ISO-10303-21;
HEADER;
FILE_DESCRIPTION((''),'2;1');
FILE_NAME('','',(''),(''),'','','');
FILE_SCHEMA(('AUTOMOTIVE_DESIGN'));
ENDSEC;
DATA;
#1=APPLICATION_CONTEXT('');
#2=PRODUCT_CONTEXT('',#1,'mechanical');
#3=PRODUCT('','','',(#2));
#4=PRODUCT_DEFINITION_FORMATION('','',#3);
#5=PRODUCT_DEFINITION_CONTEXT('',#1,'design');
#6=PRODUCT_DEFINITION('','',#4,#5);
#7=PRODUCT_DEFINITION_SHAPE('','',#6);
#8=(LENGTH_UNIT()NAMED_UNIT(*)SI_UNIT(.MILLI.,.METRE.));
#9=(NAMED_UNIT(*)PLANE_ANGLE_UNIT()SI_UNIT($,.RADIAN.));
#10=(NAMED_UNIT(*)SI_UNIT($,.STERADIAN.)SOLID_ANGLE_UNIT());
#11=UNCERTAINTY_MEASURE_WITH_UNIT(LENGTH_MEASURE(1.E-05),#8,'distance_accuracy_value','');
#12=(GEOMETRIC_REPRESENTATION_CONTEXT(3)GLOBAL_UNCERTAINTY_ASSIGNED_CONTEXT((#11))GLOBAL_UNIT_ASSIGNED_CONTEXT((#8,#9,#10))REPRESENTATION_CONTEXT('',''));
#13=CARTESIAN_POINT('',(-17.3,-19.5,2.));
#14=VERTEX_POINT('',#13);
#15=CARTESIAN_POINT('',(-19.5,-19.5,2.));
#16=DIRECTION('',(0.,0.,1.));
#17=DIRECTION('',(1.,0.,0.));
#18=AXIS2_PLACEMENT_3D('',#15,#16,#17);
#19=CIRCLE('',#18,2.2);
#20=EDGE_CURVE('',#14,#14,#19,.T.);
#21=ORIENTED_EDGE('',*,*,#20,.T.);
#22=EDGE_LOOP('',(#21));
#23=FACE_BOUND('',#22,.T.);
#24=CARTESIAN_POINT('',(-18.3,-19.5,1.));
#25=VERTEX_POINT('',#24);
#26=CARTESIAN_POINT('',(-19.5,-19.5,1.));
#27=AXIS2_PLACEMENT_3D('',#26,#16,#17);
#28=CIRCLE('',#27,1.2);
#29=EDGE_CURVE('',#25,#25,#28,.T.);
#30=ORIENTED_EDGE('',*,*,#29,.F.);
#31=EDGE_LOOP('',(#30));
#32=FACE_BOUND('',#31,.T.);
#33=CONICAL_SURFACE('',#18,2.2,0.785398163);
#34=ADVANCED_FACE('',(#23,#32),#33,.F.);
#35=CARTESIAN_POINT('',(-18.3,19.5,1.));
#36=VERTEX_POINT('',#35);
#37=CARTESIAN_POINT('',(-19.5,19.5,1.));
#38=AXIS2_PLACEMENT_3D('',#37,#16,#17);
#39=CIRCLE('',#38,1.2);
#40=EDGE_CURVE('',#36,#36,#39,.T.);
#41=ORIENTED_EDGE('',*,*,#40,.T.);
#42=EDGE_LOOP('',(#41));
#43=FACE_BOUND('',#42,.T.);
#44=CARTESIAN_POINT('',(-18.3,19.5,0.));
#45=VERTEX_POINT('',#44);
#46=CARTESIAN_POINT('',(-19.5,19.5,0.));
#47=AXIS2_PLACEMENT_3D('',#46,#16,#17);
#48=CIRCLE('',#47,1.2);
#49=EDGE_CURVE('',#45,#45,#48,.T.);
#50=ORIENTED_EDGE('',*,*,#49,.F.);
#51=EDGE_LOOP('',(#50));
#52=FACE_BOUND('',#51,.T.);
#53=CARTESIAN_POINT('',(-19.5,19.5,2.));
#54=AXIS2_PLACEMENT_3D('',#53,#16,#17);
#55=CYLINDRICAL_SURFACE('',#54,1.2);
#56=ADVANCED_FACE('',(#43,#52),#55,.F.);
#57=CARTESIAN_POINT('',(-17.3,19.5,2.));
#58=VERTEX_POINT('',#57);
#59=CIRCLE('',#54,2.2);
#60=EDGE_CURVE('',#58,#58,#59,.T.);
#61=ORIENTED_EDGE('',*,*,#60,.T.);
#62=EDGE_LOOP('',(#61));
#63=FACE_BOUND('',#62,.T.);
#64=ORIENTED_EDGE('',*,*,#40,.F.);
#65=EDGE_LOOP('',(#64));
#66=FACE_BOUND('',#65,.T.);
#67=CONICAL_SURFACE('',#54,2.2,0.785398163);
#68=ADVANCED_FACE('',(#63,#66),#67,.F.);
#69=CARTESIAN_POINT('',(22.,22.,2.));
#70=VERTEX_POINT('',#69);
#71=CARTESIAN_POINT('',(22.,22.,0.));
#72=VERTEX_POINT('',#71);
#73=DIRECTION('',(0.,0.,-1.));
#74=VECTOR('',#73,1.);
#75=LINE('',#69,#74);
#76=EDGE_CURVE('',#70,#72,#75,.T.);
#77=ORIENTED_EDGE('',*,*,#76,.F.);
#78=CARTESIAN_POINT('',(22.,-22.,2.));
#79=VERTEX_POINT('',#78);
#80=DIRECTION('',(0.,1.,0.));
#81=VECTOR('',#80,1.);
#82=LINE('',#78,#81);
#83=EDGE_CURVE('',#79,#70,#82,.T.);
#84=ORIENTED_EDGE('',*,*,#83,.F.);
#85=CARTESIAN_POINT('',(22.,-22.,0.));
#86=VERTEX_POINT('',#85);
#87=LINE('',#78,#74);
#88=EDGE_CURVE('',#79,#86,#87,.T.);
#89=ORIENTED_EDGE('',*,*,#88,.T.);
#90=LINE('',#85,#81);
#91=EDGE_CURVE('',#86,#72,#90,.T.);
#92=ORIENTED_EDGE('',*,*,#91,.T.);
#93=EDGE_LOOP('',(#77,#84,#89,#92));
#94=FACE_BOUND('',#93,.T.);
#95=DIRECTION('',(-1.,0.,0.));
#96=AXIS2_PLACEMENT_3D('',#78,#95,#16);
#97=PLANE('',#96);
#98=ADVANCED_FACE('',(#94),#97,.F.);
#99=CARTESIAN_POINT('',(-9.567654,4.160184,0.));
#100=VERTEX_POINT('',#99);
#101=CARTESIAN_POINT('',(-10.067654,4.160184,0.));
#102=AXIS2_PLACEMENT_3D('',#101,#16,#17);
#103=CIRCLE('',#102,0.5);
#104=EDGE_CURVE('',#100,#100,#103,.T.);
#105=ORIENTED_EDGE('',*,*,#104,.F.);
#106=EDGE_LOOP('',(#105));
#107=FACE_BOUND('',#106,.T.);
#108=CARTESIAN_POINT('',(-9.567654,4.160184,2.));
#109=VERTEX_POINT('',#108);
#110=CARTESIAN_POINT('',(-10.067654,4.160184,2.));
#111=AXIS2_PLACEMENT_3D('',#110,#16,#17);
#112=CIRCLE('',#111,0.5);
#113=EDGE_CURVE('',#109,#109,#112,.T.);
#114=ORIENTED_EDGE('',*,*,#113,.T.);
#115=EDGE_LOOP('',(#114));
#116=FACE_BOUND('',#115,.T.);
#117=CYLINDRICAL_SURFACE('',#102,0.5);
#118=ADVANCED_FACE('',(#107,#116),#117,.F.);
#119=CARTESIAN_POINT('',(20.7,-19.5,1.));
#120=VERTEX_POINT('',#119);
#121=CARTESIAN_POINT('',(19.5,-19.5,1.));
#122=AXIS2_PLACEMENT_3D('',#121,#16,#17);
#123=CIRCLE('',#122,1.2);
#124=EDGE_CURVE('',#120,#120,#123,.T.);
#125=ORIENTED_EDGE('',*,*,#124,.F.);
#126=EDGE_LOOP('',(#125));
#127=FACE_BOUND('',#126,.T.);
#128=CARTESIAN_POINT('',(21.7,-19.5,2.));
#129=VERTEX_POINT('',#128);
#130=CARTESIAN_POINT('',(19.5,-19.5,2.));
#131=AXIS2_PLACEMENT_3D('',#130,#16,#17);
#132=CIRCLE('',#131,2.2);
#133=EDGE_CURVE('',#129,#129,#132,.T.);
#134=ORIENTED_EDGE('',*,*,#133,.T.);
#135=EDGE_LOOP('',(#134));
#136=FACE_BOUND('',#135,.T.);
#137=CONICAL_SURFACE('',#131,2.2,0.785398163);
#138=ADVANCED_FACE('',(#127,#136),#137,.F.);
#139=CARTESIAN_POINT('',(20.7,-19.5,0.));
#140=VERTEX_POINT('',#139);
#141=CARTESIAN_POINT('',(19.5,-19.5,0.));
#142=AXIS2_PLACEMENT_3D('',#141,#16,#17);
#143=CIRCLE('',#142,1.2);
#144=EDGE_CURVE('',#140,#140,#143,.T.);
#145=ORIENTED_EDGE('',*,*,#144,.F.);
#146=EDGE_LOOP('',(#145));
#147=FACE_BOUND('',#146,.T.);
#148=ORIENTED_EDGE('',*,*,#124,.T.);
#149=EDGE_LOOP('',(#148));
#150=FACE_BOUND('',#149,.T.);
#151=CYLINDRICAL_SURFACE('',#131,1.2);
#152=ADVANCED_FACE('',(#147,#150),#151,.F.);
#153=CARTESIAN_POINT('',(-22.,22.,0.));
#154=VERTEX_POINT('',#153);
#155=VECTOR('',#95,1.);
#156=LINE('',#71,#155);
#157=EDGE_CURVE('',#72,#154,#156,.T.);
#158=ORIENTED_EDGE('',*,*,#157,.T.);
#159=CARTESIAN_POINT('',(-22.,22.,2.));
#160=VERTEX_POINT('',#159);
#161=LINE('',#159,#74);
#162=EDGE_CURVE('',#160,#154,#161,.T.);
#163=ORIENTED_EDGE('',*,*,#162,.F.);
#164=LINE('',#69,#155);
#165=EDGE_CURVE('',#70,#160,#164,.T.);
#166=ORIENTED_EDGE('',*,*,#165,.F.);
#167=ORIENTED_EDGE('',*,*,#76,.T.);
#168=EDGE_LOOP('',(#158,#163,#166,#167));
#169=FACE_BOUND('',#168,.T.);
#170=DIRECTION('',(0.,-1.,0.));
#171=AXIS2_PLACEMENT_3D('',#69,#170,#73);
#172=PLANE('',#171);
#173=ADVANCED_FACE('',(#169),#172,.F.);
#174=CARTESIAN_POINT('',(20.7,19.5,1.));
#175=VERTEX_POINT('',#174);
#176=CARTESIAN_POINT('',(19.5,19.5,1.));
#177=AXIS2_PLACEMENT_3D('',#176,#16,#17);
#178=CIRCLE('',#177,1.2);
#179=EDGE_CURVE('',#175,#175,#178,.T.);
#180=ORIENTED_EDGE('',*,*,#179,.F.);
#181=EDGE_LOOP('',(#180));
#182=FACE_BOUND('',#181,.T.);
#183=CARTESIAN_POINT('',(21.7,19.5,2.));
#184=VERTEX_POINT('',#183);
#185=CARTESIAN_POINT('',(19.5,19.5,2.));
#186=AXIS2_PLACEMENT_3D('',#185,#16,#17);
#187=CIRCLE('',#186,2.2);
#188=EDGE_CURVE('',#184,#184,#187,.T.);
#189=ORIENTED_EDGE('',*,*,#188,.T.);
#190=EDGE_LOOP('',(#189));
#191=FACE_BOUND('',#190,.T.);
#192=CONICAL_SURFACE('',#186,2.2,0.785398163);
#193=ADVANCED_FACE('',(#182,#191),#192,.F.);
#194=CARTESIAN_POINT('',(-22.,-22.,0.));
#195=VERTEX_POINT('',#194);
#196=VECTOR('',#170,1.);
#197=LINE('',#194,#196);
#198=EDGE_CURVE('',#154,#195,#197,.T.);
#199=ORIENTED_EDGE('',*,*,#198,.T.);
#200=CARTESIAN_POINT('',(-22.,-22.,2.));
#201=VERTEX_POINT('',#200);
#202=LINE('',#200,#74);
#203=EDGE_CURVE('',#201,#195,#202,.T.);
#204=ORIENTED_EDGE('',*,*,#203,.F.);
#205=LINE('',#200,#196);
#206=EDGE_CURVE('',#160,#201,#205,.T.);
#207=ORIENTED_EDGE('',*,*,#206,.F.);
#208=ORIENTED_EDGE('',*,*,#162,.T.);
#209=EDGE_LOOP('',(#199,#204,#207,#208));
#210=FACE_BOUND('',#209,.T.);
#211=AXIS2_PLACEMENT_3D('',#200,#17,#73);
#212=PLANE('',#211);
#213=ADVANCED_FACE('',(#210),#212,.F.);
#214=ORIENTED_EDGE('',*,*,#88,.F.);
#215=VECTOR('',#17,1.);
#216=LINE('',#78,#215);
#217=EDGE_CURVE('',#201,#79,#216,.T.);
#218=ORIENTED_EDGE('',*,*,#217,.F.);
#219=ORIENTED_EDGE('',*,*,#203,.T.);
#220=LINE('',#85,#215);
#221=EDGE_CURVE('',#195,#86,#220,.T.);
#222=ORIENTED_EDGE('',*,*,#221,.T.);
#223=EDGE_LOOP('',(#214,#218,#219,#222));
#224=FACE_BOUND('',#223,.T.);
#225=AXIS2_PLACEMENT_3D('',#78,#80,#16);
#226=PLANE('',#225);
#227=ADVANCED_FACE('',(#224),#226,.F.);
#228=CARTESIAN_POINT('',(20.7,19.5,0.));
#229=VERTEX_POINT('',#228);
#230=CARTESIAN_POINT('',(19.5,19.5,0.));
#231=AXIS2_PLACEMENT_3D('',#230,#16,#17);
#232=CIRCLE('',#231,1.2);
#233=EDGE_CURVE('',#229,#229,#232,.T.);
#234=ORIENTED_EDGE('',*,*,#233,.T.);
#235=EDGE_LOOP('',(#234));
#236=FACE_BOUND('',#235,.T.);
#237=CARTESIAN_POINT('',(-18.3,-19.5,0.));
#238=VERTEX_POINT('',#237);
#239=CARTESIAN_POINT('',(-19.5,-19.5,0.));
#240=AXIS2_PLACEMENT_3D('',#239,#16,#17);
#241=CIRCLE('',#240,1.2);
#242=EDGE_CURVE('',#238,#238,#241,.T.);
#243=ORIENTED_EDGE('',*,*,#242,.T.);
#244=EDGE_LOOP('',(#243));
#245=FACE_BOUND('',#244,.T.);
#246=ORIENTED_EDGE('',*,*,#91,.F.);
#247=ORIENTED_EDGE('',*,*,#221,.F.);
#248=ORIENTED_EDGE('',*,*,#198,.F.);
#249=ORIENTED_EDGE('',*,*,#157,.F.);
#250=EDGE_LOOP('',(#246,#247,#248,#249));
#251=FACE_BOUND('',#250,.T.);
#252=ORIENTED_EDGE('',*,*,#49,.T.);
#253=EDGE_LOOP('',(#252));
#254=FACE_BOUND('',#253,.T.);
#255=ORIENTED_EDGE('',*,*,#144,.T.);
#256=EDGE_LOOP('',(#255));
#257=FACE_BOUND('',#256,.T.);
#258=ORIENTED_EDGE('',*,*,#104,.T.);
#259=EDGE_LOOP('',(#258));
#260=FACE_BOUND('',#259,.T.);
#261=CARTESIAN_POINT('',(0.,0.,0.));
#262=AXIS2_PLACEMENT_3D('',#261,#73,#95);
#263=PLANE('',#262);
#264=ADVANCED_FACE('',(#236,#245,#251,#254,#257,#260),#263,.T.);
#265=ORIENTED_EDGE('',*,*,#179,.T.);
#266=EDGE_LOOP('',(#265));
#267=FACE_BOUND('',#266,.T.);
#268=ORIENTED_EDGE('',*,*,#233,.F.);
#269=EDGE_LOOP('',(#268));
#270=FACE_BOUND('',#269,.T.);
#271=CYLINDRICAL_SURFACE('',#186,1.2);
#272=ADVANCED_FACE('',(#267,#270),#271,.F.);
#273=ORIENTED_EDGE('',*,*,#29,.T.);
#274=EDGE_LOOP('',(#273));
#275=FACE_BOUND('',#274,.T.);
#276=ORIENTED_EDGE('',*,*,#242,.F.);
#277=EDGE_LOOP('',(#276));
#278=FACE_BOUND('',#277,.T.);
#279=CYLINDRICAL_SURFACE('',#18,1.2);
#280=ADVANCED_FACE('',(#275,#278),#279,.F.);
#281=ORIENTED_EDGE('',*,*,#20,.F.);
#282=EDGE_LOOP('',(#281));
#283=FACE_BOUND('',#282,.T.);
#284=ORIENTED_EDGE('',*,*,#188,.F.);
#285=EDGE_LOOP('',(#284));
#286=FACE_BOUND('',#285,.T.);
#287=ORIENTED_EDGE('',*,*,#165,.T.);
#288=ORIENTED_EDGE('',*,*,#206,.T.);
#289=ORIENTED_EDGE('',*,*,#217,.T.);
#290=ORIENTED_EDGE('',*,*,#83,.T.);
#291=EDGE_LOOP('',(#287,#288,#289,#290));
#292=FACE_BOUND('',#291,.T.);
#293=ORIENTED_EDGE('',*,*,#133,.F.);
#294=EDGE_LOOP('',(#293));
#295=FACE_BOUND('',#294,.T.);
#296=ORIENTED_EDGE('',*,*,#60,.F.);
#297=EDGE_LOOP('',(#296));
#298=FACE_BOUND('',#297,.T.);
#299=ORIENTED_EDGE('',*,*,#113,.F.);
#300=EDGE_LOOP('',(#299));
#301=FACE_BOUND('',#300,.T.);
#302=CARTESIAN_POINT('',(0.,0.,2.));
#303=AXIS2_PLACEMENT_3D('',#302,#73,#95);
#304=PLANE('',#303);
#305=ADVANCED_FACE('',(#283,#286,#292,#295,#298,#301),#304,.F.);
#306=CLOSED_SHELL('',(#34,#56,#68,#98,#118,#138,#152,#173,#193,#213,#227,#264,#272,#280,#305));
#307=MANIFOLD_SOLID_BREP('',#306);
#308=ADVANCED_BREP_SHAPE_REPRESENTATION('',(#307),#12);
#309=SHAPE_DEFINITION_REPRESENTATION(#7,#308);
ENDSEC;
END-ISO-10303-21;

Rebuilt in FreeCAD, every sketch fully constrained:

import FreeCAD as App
import Part
import Sketcher
from FreeCAD import Vector
Q = App.Units.Quantity

doc = App.newDocument("Part")
body = doc.addObject("PartDesign::Body", "Body")

sketch1 = body.newObject("Sketcher::SketchObject", "Sketch")
sketch1.AttachmentSupport = (doc.getObject("XY_Plane"), [""])
sketch1.MapMode = "FlatFace"
sketch1.addGeometry(Part.LineSegment(Vector(-22, -22, 0), Vector(22, -22, 0)), False)
sketch1.addGeometry(Part.LineSegment(Vector(22, -22, 0), Vector(22, 22, 0)), False)
sketch1.addGeometry(Part.LineSegment(Vector(22, 22, 0), Vector(-22, 22, 0)), False)
sketch1.addGeometry(Part.LineSegment(Vector(-22, 22, 0), Vector(-22, -22, 0)), False)
sketch1.addConstraint(Sketcher.Constraint("Coincident", 0, 2, 1, 1))
sketch1.addConstraint(Sketcher.Constraint("Coincident", 1, 2, 2, 1))
sketch1.addConstraint(Sketcher.Constraint("Coincident", 2, 2, 3, 1))
sketch1.addConstraint(Sketcher.Constraint("Coincident", 3, 2, 0, 1))
sketch1.addConstraint(Sketcher.Constraint("Horizontal", 0))
sketch1.addConstraint(Sketcher.Constraint("Vertical", 1))
sketch1.addConstraint(Sketcher.Constraint("Horizontal", 2))
sketch1.addConstraint(Sketcher.Constraint("Vertical", 3))
sketch1.addConstraint(Sketcher.Constraint("Symmetric", 0, 2, 2, 2, -1, 1))
sketch1.addConstraint(Sketcher.Constraint("Equal", 2, 1))
sketch1.addConstraint(Sketcher.Constraint("DistanceX", 0, 1, 0, 2, Q("44 mm")))
pad1 = body.newObject("PartDesign::Pad", "Pad")
pad1.Profile = sketch1
pad1.Length = 2

sketch2 = body.newObject("Sketcher::SketchObject", "Sketch001")
sketch2.AttachmentSupport = (doc.getObject("XY_Plane"), [""])
sketch2.MapMode = "FlatFace"
sketch2.AttachmentOffset = App.Placement(Vector(0, 0, 2), App.Rotation())
sketch2.addGeometry(Part.Circle(Vector(-10.1, 4.2, 0), Vector(0, 0, 1), 0.5), False)
sketch2.addConstraint(Sketcher.Constraint("Diameter", 0, Q("1 mm")))
sketch2.addConstraint(Sketcher.Constraint("DistanceX", 0, 3, -1, 1, Q("10.067654 mm")))
sketch2.addConstraint(Sketcher.Constraint("DistanceY", -1, 1, 0, 3, Q("4.160184 mm")))
pocket1 = body.newObject("PartDesign::Pocket", "Pocket")
pocket1.Profile = sketch2
pocket1.Type = "ThroughAll"

sketch3 = body.newObject("Sketcher::SketchObject", "Sketch002")
sketch3.AttachmentSupport = (doc.getObject("YZ_Plane"), [""])
sketch3.MapMode = "FlatFace"
sketch3.AttachmentOffset = App.Placement(Vector(0, 0, 19.5), App.Rotation())
sketch3.addGeometry(Part.LineSegment(Vector(-19.5, 0, 0), Vector(-19.5, 2, 0)), False)
sketch3.addGeometry(Part.LineSegment(Vector(-19.5, 2, 0), Vector(-21.7, 2, 0)), False)
sketch3.addGeometry(Part.LineSegment(Vector(-21.7, 2, 0), Vector(-20.7, 1, 0)), False)
sketch3.addGeometry(Part.LineSegment(Vector(-20.7, 1, 0), Vector(-20.7, 0, 0)), False)
sketch3.addGeometry(Part.LineSegment(Vector(-20.7, 0, 0), Vector(-19.5, 0, 0)), False)
sketch3.addGeometry(Part.LineSegment(Vector(-19.5, 2, 0), Vector(-19.5, 0, 0)), True)
sketch3.addConstraint(Sketcher.Constraint("Coincident", 0, 2, 1, 1))
sketch3.addConstraint(Sketcher.Constraint("Coincident", 1, 2, 2, 1))
sketch3.addConstraint(Sketcher.Constraint("Coincident", 2, 2, 3, 1))
sketch3.addConstraint(Sketcher.Constraint("Coincident", 3, 2, 4, 1))
sketch3.addConstraint(Sketcher.Constraint("Coincident", 4, 2, 0, 1))
sketch3.addConstraint(Sketcher.Constraint("Vertical", 0))
sketch3.addConstraint(Sketcher.Constraint("Horizontal", 1))
sketch3.addConstraint(Sketcher.Constraint("Vertical", 3))
sketch3.addConstraint(Sketcher.Constraint("Horizontal", 4))
sketch3.addConstraint(Sketcher.Constraint("Vertical", 5))
sketch3.addConstraint(Sketcher.Constraint("Coincident", 5, 1, 0, 2))
sketch3.addConstraint(Sketcher.Constraint("PointOnObject", 3, 2, -1))
sketch3.addConstraint(Sketcher.Constraint("PointOnObject", 5, 2, -1))
sketch3.addConstraint(Sketcher.Constraint("DistanceY", 0, 1, 0, 2, Q("2 mm")))
sketch3.addConstraint(Sketcher.Constraint("DistanceY", 3, 2, 3, 1, Q("1 mm")))
sketch3.addConstraint(Sketcher.Constraint("Angle", 2, Q("-45 deg")))
sketch3.addConstraint(Sketcher.Constraint("DistanceX", 1, 2, 1, 1, Q("2.2 mm")))
sketch3.addConstraint(Sketcher.Constraint("DistanceX", 0, 2, -1, 1, Q("19.5 mm")))
groove = body.newObject("PartDesign::Groove", "Groove")
groove.Profile = sketch3
groove.ReferenceAxis = (sketch3, ["Axis0"])
groove.Angle = 360
doc.recompute()

linearpattern = body.newObject("PartDesign::LinearPattern", "LinearPattern")
linearpattern.Originals = [groove]
linearpattern.Direction = (doc.getObject("X_Axis"), [""])
linearpattern.Mode = "offset"
linearpattern.Offset = 39
linearpattern.Occurrences = 2
linearpattern.Reversed = True
body.Tip = linearpattern
doc.recompute()

datumline = body.newObject("PartDesign::Line", "DatumLine")
datumline.Placement = App.Placement(Vector(0, 0, 0), App.Rotation(Vector(0, 0, 1), Vector(-0.707106781, 0.707106781, 0)))
linearpattern2 = body.newObject("PartDesign::LinearPattern", "LinearPattern001")
linearpattern2.Originals = [groove]
linearpattern2.Direction = (datumline, [""])
linearpattern2.Mode = "offset"
linearpattern2.Offset = 55.154329
linearpattern2.Occurrences = 2
body.Tip = linearpattern2
doc.recompute()

linearpattern3 = body.newObject("PartDesign::LinearPattern", "LinearPattern002")
linearpattern3.Originals = [groove]
linearpattern3.Direction = (doc.getObject("Y_Axis"), [""])
linearpattern3.Mode = "offset"
linearpattern3.Offset = 39
linearpattern3.Occurrences = 2
body.Tip = linearpattern3

doc.recompute()
